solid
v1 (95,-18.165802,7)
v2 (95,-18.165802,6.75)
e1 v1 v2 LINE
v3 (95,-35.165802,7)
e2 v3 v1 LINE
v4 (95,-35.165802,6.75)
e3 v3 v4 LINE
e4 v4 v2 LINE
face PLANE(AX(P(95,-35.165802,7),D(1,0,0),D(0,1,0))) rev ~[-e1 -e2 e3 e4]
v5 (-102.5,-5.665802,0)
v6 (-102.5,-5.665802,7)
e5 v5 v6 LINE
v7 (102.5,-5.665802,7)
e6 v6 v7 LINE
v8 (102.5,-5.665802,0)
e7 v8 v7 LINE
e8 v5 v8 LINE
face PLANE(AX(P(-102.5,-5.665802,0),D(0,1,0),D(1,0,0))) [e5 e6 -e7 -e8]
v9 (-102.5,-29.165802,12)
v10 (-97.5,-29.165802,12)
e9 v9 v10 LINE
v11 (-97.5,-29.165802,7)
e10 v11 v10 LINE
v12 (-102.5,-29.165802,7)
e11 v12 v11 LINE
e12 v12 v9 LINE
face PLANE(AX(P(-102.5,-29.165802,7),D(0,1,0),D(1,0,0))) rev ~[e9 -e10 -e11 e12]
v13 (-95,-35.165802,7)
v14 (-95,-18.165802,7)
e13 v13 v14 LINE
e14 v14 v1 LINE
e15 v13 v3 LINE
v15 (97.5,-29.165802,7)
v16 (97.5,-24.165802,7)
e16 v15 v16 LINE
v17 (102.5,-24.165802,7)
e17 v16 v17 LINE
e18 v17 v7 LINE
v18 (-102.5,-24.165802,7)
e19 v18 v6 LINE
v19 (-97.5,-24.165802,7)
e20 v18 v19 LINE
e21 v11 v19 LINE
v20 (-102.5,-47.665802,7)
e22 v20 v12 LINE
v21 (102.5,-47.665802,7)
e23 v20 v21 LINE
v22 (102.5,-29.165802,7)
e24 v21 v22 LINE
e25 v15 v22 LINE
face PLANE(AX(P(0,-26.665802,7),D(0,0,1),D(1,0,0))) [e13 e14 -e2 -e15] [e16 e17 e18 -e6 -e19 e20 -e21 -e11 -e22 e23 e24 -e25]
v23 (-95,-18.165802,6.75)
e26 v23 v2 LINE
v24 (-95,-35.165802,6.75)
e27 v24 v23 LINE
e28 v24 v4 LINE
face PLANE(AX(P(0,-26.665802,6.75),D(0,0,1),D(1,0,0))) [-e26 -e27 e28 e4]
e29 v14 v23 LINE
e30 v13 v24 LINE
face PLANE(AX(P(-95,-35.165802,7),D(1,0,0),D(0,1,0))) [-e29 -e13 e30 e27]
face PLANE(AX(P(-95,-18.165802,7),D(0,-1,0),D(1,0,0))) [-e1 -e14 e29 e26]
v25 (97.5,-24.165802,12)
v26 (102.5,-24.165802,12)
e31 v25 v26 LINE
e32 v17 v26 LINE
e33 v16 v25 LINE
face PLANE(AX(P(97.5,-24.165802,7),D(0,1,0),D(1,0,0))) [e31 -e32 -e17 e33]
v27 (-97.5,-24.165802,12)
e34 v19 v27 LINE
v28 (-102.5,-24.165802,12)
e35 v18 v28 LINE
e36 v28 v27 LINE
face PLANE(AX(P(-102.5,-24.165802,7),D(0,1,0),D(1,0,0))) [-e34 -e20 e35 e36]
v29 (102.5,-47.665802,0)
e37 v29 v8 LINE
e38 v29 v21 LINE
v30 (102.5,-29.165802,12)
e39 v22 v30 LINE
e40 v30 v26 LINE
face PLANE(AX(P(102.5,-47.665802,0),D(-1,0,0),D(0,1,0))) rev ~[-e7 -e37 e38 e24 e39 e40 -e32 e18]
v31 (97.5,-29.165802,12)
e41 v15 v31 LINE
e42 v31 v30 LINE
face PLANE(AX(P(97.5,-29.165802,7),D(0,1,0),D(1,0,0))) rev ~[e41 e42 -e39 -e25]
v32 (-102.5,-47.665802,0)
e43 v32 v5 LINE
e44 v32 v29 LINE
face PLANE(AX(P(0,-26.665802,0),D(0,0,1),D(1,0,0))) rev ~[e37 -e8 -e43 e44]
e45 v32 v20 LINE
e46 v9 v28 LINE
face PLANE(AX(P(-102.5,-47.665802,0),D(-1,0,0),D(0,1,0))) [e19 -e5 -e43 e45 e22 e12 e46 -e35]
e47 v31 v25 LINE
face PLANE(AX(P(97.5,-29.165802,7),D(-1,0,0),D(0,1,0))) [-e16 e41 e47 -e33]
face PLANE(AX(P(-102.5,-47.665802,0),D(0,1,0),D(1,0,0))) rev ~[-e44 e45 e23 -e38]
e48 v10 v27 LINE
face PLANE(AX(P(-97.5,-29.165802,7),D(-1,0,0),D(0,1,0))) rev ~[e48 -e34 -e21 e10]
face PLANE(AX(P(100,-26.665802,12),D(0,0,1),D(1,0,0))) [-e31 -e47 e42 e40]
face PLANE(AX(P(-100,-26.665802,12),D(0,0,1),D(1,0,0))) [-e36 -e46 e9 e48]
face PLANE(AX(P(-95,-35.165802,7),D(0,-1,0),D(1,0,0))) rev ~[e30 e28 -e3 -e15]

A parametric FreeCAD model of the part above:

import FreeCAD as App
import Part
import Sketcher

V = App.Vector

doc = App.newDocument("Part")
body = doc.addObject("PartDesign::Body", "Body")

sketch1 = doc.addObject("Sketcher::SketchObject", "Sketch")
body.addObject(sketch1)
sketch1.AttachmentSupport = (doc.XY_Plane, [""])
sketch1.MapMode = "FlatFace"
sketch1.addGeometry([
    Part.LineSegment(V(-102.5, -5.665802, 0), V(-102.5, -47.665802, 0)),
    Part.LineSegment(V(-102.5, -47.665802, 0), V(102.5, -47.665802, 0)),
    Part.LineSegment(V(102.5, -47.665802, 0), V(102.5, -5.665802, 0)),
    Part.LineSegment(V(102.5, -5.665802, 0), V(-102.5, -5.665802, 0)),
], False)
sketch1.addConstraint([
    Sketcher.Constraint("Coincident", 0, 2, 1, 1),
    Sketcher.Constraint("Coincident", 1, 2, 2, 1),
    Sketcher.Constraint("Coincident", 2, 2, 3, 1),
    Sketcher.Constraint("Coincident", 3, 2, 0, 1),
    Sketcher.Constraint("Vertical", 0),
    Sketcher.Constraint("Horizontal", 1),
    Sketcher.Constraint("Vertical", 2),
    Sketcher.Constraint("Horizontal", 3),
    Sketcher.Constraint("DistanceX", 1, 1, 1, 2, 205.0),
    Sketcher.Constraint("DistanceY", 0, 2, 0, 1, 42.0),
    Sketcher.Constraint("DistanceX", 0, 2, -1, 1, 102.5),
    Sketcher.Constraint("DistanceY", 0, 2, -1, 1, 47.665802),
])
pad1 = doc.addObject("PartDesign::Pad", "Pad")
body.addObject(pad1)
pad1.Profile = sketch1
pad1.Length = 7

sketch2 = doc.addObject("Sketcher::SketchObject", "Sketch001")
body.addObject(sketch2)
sketch2.AttachmentSupport = (doc.XY_Plane, [""])
sketch2.MapMode = "FlatFace"
sketch2.AttachmentOffset = App.Placement(V(0, 0, 7), App.Rotation())
sketch2.addGeometry([
    Part.LineSegment(V(-102.5, -24.165802, 0), V(-102.5, -29.165802, 0)),
    Part.LineSegment(V(-102.5, -29.165802, 0), V(-97.5, -29.165802, 0)),
    Part.LineSegment(V(-97.5, -29.165802, 0), V(-97.5, -24.165802, 0)),
    Part.LineSegment(V(-97.5, -24.165802, 0), V(-102.5, -24.165802, 0)),
    Part.LineSegment(V(97.5, -24.165802, 0), V(97.5, -29.165802, 0)),
    Part.LineSegment(V(97.5, -29.165802, 0), V(102.5, -29.165802, 0)),
    Part.LineSegment(V(102.5, -29.165802, 0), V(102.5, -24.165802, 0)),
    Part.LineSegment(V(102.5, -24.165802, 0), V(97.5, -24.165802, 0)),
], False)
sketch2.addConstraint([
    Sketcher.Constraint("Coincident", 0, 2, 1, 1),
    Sketcher.Constraint("Coincident", 1, 2, 2, 1),
    Sketcher.Constraint("Coincident", 2, 2, 3, 1),
    Sketcher.Constraint("Coincident", 3, 2, 0, 1),
    Sketcher.Constraint("Coincident", 4, 2, 5, 1),
    Sketcher.Constraint("Coincident", 5, 2, 6, 1),
    Sketcher.Constraint("Coincident", 6, 2, 7, 1),
    Sketcher.Constraint("Coincident", 7, 2, 4, 1),
    Sketcher.Constraint("Vertical", 0),
    Sketcher.Constraint("Horizontal", 1),
    Sketcher.Constraint("Vertical", 2),
    Sketcher.Constraint("Horizontal", 3),
    Sketcher.Constraint("Vertical", 4),
    Sketcher.Constraint("Horizontal", 5),
    Sketcher.Constraint("Vertical", 6),
    Sketcher.Constraint("Horizontal", 7),
    Sketcher.Constraint("Symmetric", 1, 2, 4, 2, -2),
    Sketcher.Constraint("Symmetric", 3, 2, 6, 2, -2),
    Sketcher.Constraint("Equal", 7, 0),
    Sketcher.Constraint("DistanceX", 1, 1, 1, 2, 5.0),
    Sketcher.Constraint("DistanceX", 1, 2, 4, 2, 195.0),
    Sketcher.Constraint("DistanceY", 0, 2, -1, 1, 29.165802),
])
pad2 = doc.addObject("PartDesign::Pad", "Pad001")
body.addObject(pad2)
pad2.Profile = sketch2
pad2.Length = 5

sketch3 = doc.addObject("Sketcher::SketchObject", "Sketch002")
body.addObject(sketch3)
sketch3.AttachmentSupport = (doc.XY_Plane, [""])
sketch3.MapMode = "FlatFace"
sketch3.AttachmentOffset = App.Placement(V(0, 0, 7), App.Rotation())
sketch3.addGeometry([
    Part.LineSegment(V(-95, -18.165802, 0), V(-95, -35.165802, 0)),
    Part.LineSegment(V(-95, -35.165802, 0), V(95, -35.165802, 0)),
    Part.LineSegment(V(95, -35.165802, 0), V(95, -18.165802, 0)),
    Part.LineSegment(V(95, -18.165802, 0), V(-95, -18.165802, 0)),
], False)
sketch3.addConstraint([
    Sketcher.Constraint("Coincident", 0, 2, 1, 1),
    Sketcher.Constraint("Coincident", 1, 2, 2, 1),
    Sketcher.Constraint("Coincident", 2, 2, 3, 1),
    Sketcher.Constraint("Coincident", 3, 2, 0, 1),
    Sketcher.Constraint("Vertical", 0),
    Sketcher.Constraint("Horizontal", 1),
    Sketcher.Constraint("Vertical", 2),
    Sketcher.Constraint("Horizontal", 3),
    Sketcher.Constraint("DistanceX", 1, 1, 1, 2, 190.0),
    Sketcher.Constraint("DistanceY", 0, 2, 0, 1, 17.0),
    Sketcher.Constraint("DistanceX", 0, 2, -1, 1, 95.0),
    Sketcher.Constraint("DistanceY", 2, 2, -1, 1, 18.165802),
])
pocket1 = doc.addObject("PartDesign::Pocket", "Pocket")
body.addObject(pocket1)
pocket1.Profile = sketch3
pocket1.Length = 0.25

doc.recompute()
